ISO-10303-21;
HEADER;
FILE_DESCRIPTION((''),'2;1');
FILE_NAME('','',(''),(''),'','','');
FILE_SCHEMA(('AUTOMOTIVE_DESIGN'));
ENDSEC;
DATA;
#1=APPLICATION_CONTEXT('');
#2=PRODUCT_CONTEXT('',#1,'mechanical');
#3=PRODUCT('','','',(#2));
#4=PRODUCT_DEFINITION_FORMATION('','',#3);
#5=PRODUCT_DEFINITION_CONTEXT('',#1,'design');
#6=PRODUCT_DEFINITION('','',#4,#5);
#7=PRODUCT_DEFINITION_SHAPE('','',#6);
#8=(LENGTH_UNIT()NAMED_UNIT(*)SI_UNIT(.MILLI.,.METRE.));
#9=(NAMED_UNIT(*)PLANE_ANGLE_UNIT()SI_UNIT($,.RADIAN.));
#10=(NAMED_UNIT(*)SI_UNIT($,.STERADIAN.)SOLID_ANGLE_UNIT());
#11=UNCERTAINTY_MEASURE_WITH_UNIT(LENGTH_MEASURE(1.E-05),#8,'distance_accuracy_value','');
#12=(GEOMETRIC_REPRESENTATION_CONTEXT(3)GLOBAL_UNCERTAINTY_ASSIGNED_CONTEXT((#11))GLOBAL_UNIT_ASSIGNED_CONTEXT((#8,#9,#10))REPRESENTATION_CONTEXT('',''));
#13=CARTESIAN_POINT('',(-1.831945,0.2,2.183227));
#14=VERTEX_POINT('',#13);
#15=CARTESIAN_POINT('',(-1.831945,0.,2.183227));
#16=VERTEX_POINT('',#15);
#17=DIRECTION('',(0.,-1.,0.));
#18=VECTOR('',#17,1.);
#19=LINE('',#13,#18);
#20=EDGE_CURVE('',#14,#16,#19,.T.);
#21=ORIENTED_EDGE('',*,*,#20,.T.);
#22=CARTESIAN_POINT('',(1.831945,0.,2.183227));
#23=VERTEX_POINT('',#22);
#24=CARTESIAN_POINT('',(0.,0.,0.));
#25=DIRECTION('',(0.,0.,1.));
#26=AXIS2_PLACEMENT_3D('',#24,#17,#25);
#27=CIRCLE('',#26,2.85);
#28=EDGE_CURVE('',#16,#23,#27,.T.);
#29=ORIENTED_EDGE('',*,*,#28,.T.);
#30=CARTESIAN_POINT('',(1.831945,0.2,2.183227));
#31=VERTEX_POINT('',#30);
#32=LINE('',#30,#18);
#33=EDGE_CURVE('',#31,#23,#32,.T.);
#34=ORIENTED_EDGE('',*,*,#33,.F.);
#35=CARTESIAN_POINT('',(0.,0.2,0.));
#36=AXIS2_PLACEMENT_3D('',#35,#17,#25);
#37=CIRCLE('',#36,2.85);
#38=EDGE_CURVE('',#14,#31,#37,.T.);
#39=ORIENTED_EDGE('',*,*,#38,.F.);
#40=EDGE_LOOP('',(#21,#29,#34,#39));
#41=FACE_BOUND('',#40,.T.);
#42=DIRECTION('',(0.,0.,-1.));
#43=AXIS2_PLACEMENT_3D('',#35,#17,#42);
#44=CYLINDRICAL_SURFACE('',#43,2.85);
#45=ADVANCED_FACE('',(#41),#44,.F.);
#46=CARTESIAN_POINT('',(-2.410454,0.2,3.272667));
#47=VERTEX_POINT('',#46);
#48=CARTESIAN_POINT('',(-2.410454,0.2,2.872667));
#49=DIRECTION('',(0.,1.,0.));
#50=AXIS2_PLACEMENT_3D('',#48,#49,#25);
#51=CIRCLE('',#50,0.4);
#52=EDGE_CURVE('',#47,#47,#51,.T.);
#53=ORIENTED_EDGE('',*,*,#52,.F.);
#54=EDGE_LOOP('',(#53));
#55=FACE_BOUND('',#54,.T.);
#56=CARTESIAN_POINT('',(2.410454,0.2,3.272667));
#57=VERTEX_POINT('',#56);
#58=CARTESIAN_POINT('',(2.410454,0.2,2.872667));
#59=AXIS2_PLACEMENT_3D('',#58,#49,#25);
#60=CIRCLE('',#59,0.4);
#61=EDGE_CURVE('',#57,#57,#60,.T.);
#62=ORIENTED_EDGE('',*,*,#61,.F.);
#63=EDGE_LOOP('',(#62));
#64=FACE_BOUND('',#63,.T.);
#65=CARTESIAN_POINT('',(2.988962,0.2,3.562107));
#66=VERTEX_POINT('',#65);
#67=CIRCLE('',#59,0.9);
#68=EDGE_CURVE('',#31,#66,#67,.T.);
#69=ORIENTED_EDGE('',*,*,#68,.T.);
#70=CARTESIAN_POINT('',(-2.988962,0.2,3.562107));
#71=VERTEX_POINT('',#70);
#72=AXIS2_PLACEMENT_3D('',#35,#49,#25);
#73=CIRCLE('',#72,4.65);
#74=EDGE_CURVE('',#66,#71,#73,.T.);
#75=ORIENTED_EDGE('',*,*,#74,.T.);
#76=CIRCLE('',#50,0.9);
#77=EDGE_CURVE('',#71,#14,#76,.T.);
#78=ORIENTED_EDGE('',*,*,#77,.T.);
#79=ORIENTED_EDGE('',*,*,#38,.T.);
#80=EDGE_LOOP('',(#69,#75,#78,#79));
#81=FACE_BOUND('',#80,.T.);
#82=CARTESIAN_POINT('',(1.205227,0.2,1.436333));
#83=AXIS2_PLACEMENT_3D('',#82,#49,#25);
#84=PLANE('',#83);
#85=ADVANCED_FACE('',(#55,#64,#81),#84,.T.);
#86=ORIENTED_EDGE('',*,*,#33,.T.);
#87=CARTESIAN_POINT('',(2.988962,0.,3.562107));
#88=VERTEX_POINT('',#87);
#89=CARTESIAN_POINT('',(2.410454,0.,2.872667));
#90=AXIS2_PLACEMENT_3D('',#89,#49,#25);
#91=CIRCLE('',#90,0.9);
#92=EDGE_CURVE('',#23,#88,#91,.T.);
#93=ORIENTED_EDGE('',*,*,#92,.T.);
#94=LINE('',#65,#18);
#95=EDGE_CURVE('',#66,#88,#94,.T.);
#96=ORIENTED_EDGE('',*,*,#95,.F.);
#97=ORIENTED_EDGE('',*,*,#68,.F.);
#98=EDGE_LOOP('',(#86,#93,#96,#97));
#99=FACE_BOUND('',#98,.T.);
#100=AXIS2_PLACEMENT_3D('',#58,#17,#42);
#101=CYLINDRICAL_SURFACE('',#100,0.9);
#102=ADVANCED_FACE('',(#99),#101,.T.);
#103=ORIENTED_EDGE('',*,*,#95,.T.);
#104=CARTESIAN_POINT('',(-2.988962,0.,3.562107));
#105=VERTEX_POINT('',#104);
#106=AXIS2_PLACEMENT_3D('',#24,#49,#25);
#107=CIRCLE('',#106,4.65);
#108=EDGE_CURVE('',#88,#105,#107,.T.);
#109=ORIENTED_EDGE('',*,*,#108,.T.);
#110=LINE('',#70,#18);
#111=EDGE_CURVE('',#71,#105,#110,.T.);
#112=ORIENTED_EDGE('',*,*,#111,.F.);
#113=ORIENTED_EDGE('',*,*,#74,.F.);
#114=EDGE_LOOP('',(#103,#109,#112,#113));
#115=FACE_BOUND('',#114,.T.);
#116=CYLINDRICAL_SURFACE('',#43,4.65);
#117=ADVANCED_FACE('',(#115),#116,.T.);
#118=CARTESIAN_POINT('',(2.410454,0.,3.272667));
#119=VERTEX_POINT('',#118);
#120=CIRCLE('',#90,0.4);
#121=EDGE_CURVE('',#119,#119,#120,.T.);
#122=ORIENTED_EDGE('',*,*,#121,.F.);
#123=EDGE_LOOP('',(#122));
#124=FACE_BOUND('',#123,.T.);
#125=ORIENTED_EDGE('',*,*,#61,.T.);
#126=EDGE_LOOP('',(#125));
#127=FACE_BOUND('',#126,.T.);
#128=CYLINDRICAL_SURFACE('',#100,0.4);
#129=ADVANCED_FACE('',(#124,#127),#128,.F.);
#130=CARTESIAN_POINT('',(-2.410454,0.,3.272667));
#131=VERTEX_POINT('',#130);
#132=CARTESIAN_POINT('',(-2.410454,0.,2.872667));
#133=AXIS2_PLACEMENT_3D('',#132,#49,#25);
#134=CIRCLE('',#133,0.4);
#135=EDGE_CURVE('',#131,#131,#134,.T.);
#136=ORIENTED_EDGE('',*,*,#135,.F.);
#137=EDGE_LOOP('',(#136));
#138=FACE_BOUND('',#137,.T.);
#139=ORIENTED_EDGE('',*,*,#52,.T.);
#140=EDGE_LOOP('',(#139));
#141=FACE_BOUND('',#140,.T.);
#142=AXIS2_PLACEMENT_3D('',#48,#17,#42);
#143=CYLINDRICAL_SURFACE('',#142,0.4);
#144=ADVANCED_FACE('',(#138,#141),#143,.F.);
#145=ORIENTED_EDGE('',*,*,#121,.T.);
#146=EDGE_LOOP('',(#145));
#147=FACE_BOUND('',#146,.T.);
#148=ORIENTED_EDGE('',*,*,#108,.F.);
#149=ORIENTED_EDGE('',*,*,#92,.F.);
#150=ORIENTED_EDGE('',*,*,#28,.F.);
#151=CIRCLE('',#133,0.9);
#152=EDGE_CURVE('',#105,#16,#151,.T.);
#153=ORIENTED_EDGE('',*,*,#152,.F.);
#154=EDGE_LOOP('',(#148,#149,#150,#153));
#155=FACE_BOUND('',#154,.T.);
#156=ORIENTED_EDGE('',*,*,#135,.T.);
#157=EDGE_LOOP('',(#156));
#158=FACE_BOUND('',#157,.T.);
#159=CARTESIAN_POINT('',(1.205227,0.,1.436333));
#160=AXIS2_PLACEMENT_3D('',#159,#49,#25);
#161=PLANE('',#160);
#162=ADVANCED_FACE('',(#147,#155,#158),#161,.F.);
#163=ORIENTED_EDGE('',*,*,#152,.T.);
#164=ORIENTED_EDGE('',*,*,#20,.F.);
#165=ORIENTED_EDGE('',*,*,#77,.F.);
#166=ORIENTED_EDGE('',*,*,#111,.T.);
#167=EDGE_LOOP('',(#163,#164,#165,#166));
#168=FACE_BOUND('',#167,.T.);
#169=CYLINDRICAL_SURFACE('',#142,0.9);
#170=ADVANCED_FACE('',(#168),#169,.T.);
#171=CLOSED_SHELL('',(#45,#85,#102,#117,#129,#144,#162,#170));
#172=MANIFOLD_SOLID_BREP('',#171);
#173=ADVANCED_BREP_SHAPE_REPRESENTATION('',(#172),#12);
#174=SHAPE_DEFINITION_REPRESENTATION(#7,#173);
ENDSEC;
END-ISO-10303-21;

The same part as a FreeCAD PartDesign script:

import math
import FreeCAD as App
import Part
import Sketcher
Q = App.Units.Quantity

doc = App.newDocument("Part")
body = doc.addObject("PartDesign::Body", "Body")

sketch1 = body.newObject("Sketcher::SketchObject", "Sketch")
sketch1.AttachmentSupport = (doc.getObject("XZ_Plane"), [""])
sketch1.MapMode = "FlatFace"
sketch1.addGeometry([
    Part.ArcOfCircle(Part.Circle(App.Vector(0, 0, 0), App.Vector(0, 0, 1), 4.65), math.radians(130), math.radians(410)),
    Part.ArcOfCircle(Part.Circle(App.Vector(-2.410454, 2.872667, 0), App.Vector(0, 0, 1), 0.9), math.radians(-50), math.radians(130)),
    Part.ArcOfCircle(Part.Circle(App.Vector(0, 0, 0), App.Vector(0, 0, 1), 2.85), math.radians(130), math.radians(410)),
    Part.ArcOfCircle(Part.Circle(App.Vector(2.410454, 2.872667, 0), App.Vector(0, 0, 1), 0.9), math.radians(50), math.radians(230)),
    Part.Circle(App.Vector(-2.410454, 2.872667, 0), App.Vector(0, 0, 1), 0.4),
    Part.Circle(App.Vector(2.410454, 2.872667, 0), App.Vector(0, 0, 1), 0.4),
], False)
sketch1.addConstraint([
    Sketcher.Constraint("Tangent", 0, 1, 1, 2),
    Sketcher.Constraint("Tangent", 1, 1, 2, 1),
    Sketcher.Constraint("Tangent", 2, 2, 3, 2),
    Sketcher.Constraint("Tangent", 3, 1, 0, 2),
    Sketcher.Constraint("Coincident", 0, 3, -1, 1),
    Sketcher.Constraint("Coincident", 2, 3, -1, 1),
    Sketcher.Constraint("Coincident", 4, 3, 1, 3),
    Sketcher.Constraint("Coincident", 5, 3, 3, 3),
    Sketcher.Constraint("Equal", 4, 5),
    Sketcher.Constraint("Horizontal", 1, 3, 3, 3),
    Sketcher.Constraint("Diameter", 4, Q("0.8 mm")),
    Sketcher.Constraint("Radius", 1, Q("0.9 mm")),
    Sketcher.Constraint("Radius", 0, Q("4.65 mm")),
    Sketcher.Constraint("DistanceX", 0, 1, 1, 3, Q("0.578509 mm")),
])
pad1 = body.newObject("PartDesign::Pad", "Pad")
pad1.Profile = sketch1
pad1.Length = 0.2
pad1.Reversed = True

doc.recompute()
